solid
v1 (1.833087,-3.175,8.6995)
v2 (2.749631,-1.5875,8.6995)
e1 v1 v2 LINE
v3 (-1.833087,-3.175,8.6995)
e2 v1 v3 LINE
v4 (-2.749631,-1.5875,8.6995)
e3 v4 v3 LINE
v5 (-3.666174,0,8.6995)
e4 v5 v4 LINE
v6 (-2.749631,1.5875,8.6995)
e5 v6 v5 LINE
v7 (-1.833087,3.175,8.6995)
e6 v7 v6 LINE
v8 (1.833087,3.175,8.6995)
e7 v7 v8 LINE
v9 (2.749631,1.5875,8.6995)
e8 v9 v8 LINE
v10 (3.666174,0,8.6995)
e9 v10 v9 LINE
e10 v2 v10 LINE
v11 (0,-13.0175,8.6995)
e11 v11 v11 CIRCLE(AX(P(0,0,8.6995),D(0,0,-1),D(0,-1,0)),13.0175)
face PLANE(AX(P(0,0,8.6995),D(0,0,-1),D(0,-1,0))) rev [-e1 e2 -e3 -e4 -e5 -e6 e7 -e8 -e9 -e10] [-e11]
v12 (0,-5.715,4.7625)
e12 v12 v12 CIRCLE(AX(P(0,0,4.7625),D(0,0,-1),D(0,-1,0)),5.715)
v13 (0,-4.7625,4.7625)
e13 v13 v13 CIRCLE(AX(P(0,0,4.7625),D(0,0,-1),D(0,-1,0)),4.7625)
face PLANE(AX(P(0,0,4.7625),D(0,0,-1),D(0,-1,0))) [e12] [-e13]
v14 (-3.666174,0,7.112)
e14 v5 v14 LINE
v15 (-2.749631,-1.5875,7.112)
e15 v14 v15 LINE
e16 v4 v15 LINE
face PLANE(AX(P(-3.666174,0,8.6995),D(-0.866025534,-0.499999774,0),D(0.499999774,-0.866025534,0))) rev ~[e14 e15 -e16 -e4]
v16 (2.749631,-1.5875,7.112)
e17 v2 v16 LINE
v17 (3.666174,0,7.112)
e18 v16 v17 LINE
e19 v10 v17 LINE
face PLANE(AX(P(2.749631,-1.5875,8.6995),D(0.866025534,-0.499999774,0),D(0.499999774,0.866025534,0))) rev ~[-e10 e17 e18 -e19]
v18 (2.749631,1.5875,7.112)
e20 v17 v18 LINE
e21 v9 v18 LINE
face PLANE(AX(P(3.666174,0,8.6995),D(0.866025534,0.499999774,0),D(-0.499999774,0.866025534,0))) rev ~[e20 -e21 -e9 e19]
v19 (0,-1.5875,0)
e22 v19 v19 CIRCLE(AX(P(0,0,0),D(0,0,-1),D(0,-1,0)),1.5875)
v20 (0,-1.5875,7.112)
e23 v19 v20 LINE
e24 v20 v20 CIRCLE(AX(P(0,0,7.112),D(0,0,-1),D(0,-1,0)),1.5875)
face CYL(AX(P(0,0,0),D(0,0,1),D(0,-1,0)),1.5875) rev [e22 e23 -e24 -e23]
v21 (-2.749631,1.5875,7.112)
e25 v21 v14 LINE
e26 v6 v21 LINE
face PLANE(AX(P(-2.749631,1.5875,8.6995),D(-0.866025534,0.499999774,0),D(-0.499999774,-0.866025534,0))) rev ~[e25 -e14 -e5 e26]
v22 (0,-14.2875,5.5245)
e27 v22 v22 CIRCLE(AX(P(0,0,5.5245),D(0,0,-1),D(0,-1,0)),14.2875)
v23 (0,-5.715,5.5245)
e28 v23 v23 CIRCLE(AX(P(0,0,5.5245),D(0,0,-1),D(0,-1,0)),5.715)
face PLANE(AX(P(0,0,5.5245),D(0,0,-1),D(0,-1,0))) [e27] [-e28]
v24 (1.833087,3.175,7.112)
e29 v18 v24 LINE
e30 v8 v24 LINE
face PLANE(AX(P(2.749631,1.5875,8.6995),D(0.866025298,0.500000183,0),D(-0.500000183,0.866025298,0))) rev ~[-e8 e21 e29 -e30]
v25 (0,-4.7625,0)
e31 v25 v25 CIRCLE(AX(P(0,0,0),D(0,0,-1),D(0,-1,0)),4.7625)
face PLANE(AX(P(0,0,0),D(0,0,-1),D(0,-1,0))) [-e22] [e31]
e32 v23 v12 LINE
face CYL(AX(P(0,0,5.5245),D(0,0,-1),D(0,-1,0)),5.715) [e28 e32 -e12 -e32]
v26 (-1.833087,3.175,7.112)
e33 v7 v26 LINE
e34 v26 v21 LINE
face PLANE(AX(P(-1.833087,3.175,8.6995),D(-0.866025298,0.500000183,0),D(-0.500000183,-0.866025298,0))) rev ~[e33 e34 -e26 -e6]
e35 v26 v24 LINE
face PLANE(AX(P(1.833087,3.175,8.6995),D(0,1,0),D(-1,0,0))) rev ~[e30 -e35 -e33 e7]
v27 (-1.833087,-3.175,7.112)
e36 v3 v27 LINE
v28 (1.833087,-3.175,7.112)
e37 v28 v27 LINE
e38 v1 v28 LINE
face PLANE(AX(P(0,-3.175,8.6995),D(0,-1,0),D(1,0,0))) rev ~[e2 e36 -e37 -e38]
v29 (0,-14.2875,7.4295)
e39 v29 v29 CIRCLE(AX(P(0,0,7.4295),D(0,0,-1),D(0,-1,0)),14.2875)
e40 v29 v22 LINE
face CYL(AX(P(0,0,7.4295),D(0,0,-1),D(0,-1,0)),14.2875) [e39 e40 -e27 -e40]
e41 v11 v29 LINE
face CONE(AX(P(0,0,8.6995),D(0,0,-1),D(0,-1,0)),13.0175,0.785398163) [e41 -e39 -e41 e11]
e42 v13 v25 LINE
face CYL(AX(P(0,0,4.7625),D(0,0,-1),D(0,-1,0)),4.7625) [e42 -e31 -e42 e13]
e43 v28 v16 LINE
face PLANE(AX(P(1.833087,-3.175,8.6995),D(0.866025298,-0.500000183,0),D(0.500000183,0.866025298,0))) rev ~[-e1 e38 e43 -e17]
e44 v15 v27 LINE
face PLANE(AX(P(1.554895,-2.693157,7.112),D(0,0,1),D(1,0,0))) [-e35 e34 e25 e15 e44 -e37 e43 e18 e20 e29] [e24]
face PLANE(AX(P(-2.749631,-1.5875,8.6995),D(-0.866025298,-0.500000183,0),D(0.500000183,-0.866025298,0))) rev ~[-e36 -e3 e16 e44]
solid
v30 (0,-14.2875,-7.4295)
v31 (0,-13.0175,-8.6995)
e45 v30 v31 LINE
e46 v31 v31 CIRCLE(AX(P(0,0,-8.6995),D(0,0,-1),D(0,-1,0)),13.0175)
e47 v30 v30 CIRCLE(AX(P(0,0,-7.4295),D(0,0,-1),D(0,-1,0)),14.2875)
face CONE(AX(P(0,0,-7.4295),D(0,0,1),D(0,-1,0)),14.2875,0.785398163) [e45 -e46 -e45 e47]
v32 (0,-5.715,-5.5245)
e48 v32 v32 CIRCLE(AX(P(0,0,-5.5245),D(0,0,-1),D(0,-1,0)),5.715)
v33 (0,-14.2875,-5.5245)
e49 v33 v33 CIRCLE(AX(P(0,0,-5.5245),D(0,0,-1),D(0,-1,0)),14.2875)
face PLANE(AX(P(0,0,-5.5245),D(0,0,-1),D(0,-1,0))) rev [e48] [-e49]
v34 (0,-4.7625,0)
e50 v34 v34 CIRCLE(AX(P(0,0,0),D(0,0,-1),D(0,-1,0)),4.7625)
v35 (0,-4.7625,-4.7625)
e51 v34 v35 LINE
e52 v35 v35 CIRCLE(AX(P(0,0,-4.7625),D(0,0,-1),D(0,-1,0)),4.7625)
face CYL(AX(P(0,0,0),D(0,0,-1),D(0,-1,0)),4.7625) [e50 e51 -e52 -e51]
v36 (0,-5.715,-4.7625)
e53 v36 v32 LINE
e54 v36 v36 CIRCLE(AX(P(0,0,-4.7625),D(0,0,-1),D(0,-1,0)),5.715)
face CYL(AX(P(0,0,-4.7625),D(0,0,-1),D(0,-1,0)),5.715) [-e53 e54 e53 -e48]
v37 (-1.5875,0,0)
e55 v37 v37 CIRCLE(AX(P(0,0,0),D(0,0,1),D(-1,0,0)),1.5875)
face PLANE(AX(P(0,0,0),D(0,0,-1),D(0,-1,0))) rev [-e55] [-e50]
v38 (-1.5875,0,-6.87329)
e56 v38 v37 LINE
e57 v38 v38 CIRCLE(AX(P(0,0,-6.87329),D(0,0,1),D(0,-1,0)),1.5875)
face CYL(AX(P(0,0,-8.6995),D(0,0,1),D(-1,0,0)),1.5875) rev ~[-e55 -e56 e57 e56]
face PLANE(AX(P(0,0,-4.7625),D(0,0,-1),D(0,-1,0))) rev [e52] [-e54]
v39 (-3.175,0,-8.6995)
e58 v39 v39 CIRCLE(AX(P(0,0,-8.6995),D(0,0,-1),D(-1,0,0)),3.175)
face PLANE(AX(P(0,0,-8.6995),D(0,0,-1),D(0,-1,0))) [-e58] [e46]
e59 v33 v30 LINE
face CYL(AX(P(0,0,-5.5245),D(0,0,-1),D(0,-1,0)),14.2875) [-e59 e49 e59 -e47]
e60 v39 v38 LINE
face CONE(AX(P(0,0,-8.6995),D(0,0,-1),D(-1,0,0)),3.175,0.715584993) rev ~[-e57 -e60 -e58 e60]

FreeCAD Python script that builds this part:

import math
import FreeCAD as App
import Part
import Sketcher

V = App.Vector
Q = App.Units.Quantity


def add_polygon(sketch, points):
    """Adds a closed chain of lines whose ends are joined by coincident constraints."""
    first, n = sketch.GeometryCount, len(points)
    for a, b in zip(points, points[1:] + points[:1]):
        sketch.addGeometry(Part.LineSegment(App.Vector(*a, 0), App.Vector(*b, 0)), False)
    for i in range(n):
        sketch.addConstraint(Sketcher.Constraint("Coincident", first + i, 2, first + (i + 1) % n, 1))

doc = App.newDocument("Part")
params = doc.addObject("Spreadsheet::Sheet", "Params")
for row, (alias, value) in enumerate([
    ("sketch1_height", "0.03 in"),
    ("sketch1_height2", "0.28 in"),
    ("sketch1_width", "0.125 in"),
    ("sketch1_width2", "0.0625 in"),
    ("sketch1_height3", "0.075 in"),
    ("revolution_angle", "360 deg"),
    ("sketch2_radius", "0.125 in"),
    ("pocket1_length", "0.0625 in"),
    ("sketch3_height", "0.03 in"),
    ("sketch3_width", "0.1875 in"),
    ("sketch3_height2", "0.075 in"),
    ("revolution2_angle", "360 deg"),
    ("sketch4_diameter", "0.125 in"),
    ("hole_diameter", "0.125 in"),
    ("hole_depth", "0.625 in"),
    ("hole_csink_diameter", "0.25 in"),
], start=1):
    params.set(f"A{row}", alias)
    params.set(f"B{row}", "=" + value)
    params.setAlias(f"B{row}", alias)

body = doc.addObject("PartDesign::Body", "Body")

# Sketch on YZ plane
sketch1 = body.newObject("Sketcher::SketchObject", "Sketch")
sketch1.AttachmentSupport = (doc.getObject("YZ_Plane"), [""])
sketch1.MapMode = "FlatFace"
add_polygon(sketch1, [(-3.2, 8.7), (-13, 8.7), (-14.3, 7.4), (-14.3, 5.5), (-5.7, 5.5), (-5.7, 4.8), (-4.8, 4.8), (-4.8, 0), (-1.6, 0), (-1.6, 7.1), (-3.2, 7.1)])  # lines 0-10
sketch1.addConstraint([
    Sketcher.Constraint("Horizontal", 0),
    Sketcher.Constraint("Vertical", 2),
    Sketcher.Constraint("Horizontal", 3),
    Sketcher.Constraint("Vertical", 4),
    Sketcher.Constraint("Horizontal", 5),
    Sketcher.Constraint("Vertical", 6),
    Sketcher.Constraint("Horizontal", 7),
    Sketcher.Constraint("Vertical", 8),
    Sketcher.Constraint("Horizontal", 9),
    Sketcher.Constraint("Vertical", 10),
    Sketcher.Constraint("PointOnObject", 6, 2, -1),
    Sketcher.Constraint("Equal", 9, 10),
    Sketcher.Constraint("Angle", 1, Q("-135 deg")),
    Sketcher.Constraint("DistanceY", 4, 2, 4, 1, Q("0.03 in")),
    Sketcher.Constraint("DistanceY", 8, 1, 8, 2, Q("0.28 in")),
    Sketcher.Constraint("DistanceX", 2, 2, 7, 2, Q("0.5 in")),
    Sketcher.Constraint("DistanceX", 3, 2, 9, 2, Q("0.1 in")),
    Sketcher.Constraint("DistanceX", 7, 1, 7, 2, Q("0.125 in")),
    Sketcher.Constraint("DistanceX", 9, 2, 9, 1, Q("0.0625 in")),
    Sketcher.Constraint("DistanceY", 2, 2, 2, 1, Q("0.075 in")),
    Sketcher.Constraint("DistanceY", 6, 2, 6, 1, Q("0.1875 in")),
    Sketcher.Constraint("DistanceX", 1, 2, -1, 1, Q("0.5625 in")),
])
sketch1.setExpression("Constraints[24]", "Params.sketch1_height")
sketch1.setExpression("Constraints[25]", "Params.sketch1_height2")
sketch1.setExpression("Constraints[28]", "Params.sketch1_width")
sketch1.setExpression("Constraints[29]", "Params.sketch1_width2")
sketch1.setExpression("Constraints[30]", "Params.sketch1_height3")
revolution = body.newObject("PartDesign::Revolution", "Revolution")
revolution.Profile = sketch1
revolution.ReferenceAxis = (sketch1, ["V_Axis"])
revolution.setExpression("Angle", "Params.revolution_angle")

# Sketch on XY plane
sketch2 = body.newObject("Sketcher::SketchObject", "Sketch001")
sketch2.AttachmentSupport = (doc.getObject("XY_Plane"), [""])
sketch2.MapMode = "FlatFace"
sketch2.AttachmentOffset = App.Placement(V(0, 0, 0.3425 * 25.4), App.Rotation())
sketch2.addGeometry([
    Part.LineSegment(V(1.833087, 3.175, 0), V(0, 3.175, 0)),  # 0
    Part.ArcOfCircle(Part.Circle(V(0.000001, 0.000001, 0), V(0, 0, 1), 3.174999), math.radians(29.999992), math.radians(90.000015)),  # 1
    Part.LineSegment(V(2.749631, 1.5875, 0), V(1.833087, 3.175, 0)),  # 2
    Part.ArcOfCircle(Part.Circle(V(-0.000021, 0.000005, 0), V(0, 0, 1), 3.175021), math.radians(-29.999884), math.radians(-0.000093)),  # 3
    Part.LineSegment(V(2.749631, -1.5875, 0), V(3.666174, 0, 0)),  # 4
    Part.LineSegment(V(3.666174, 0, 0), V(2.749631, 1.5875, 0)),  # 5
    Part.ArcOfCircle(Part.Circle(V(0.000006, 0.000002, 0), V(0, 0, 1), 3.174994), math.radians(-0.000039), math.radians(30.000016)),  # 6
    Part.ArcOfCircle(Part.Circle(V(0.000001, -0.000001, 0), V(0, 0, 1), 3.174999), math.radians(-90.000015), math.radians(-29.999992)),  # 7
    Part.LineSegment(V(0, -3.175, 0), V(1.833087, -3.175, 0)),  # 8
    Part.LineSegment(V(1.833087, -3.175, 0), V(2.749631, -1.5875, 0)),  # 9
    Part.LineSegment(V(-2.749631, -1.5875, 0), V(-1.833087, -3.175, 0)),  # 10
    Part.LineSegment(V(-1.833087, -3.175, 0), V(0, -3.175, 0)),  # 11
    Part.ArcOfCircle(Part.Circle(V(-0.000001, -0.000001, 0), V(0, 0, 1), 3.174999), math.radians(-150.000008), math.radians(-89.999985)),  # 12
    Part.LineSegment(V(-3.666174, 0, 0), V(-2.749631, -1.5875, 0)),  # 13
    Part.ArcOfCircle(Part.Circle(V(0.000002, 0, 0), V(0, 0, 1), 3.175002), math.radians(150.000023), math.radians(209.999977)),  # 14
    Part.LineSegment(V(-2.749631, 1.5875, 0), V(-3.666174, 0, 0)),  # 15
    Part.LineSegment(V(-1.833087, 3.175, 0), V(-2.749631, 1.5875, 0)),  # 16
    Part.ArcOfCircle(Part.Circle(V(-0.000001, 0.000001, 0), V(0, 0, 1), 3.174999), math.radians(89.999985), math.radians(150.000008)),  # 17
    Part.LineSegment(V(0, 3.175, 0), V(-1.833087, 3.175, 0)),  # 18
], False)
sketch2.addConstraint([
    Sketcher.Constraint("Coincident", 0, 2, 1, 2),
    Sketcher.Constraint("Coincident", 1, 1, 2, 1),
    Sketcher.Constraint("Coincident", 2, 2, 0, 1),
    Sketcher.Constraint("Coincident", 3, 1, 4, 1),
    Sketcher.Constraint("Coincident", 4, 2, 5, 1),
    Sketcher.Constraint("Coincident", 5, 2, 6, 2),
    Sketcher.Constraint("Coincident", 6, 1, 3, 2),
    Sketcher.Constraint("Coincident", 7, 1, 8, 1),
    Sketcher.Constraint("Coincident", 8, 2, 9, 1),
    Sketcher.Constraint("Coincident", 9, 2, 7, 2),
    Sketcher.Constraint("Coincident", 10, 2, 11, 1),
    Sketcher.Constraint("Coincident", 11, 2, 12, 2),
    Sketcher.Constraint("Coincident", 12, 1, 10, 1),
    Sketcher.Constraint("Coincident", 13, 2, 14, 2),
    Sketcher.Constraint("Coincident", 14, 1, 15, 1),
    Sketcher.Constraint("Coincident", 15, 2, 13, 1),
    Sketcher.Constraint("Coincident", 16, 2, 17, 2),
    Sketcher.Constraint("Coincident", 17, 1, 18, 1),
    Sketcher.Constraint("Coincident", 18, 2, 16, 1),
    Sketcher.Constraint("Horizontal", 0),
    Sketcher.Constraint("Horizontal", 8),
    Sketcher.Constraint("Horizontal", 11),
    Sketcher.Constraint("Horizontal", 18),
    Sketcher.Constraint("Coincident", 1, 3, -1, 1),
    Sketcher.Constraint("Coincident", 6, 3, -1, 1),
    Sketcher.Constraint("Coincident", 7, 3, -1, 1),
    Sketcher.Constraint("Coincident", 12, 3, -1, 1),
    Sketcher.Constraint("Coincident", 14, 3, -1, 1),
    Sketcher.Constraint("Coincident", 17, 3, -1, 1),
    Sketcher.Constraint("Coincident", 5, 2, 1, 1),
    Sketcher.Constraint("Coincident", 9, 2, 3, 1),
    Sketcher.Constraint("Coincident", 11, 2, 7, 1),
    Sketcher.Constraint("Coincident", 13, 2, 12, 1),
    Sketcher.Constraint("Coincident", 16, 2, 14, 1),
    Sketcher.Constraint("Coincident", 17, 1, 0, 2),
    Sketcher.Constraint("PointOnObject", 0, 2, -2),
    Sketcher.Constraint("PointOnObject", 4, 2, -1),
    Sketcher.Constraint("PointOnObject", 6, 1, -1),
    Sketcher.Constraint("PointOnObject", 7, 1, -2),
    Sketcher.Constraint("PointOnObject", 15, 2, -1),
    Sketcher.Constraint("Radius", 1, Q("0.125 in")),
    Sketcher.Constraint("DistanceY", -1, 1, 1, 1, Q("0.0625 in")),
    Sketcher.Constraint("DistanceY", 3, 1, -1, 1, Q("0.0625 in")),
    Sketcher.Constraint("DistanceY", 12, 1, -1, 1, Q("0.0625 in")),
    Sketcher.Constraint("DistanceY", -1, 1, 14, 1, Q("0.0625 in")),
    Sketcher.Constraint("Radius", 3, Q("3.175021 mm")),
    Sketcher.Constraint("DistanceX", 0, 2, 0, 1, Q("1.833087 mm")),
    Sketcher.Constraint("DistanceX", 8, 1, 8, 2, Q("1.833087 mm")),
    Sketcher.Constraint("DistanceX", 11, 1, 11, 2, Q("1.833087 mm")),
    Sketcher.Constraint("DistanceX", 18, 2, 18, 1, Q("1.833087 mm")),
    Sketcher.Constraint("DistanceX", 6, 3, 4, 2, Q("3.666168 mm")),
    Sketcher.Constraint("Distance", 13, Q("1.833087 mm")),
])
sketch2.setExpression("Constraints[40]", "Params.sketch2_radius")
pocket1 = body.newObject("PartDesign::Pocket", "Pocket")
pocket1.Profile = sketch2
pocket1.setExpression("Length", "Params.pocket1_length")
body2 = doc.addObject("PartDesign::Body", "Body001")

# Sketch on YZ plane
sketch3 = body2.newObject("Sketcher::SketchObject", "Sketch002")
sketch3.AttachmentSupport = (doc.getObject("YZ_Plane001"), [""])
sketch3.MapMode = "FlatFace"
add_polygon(sketch3, [(0, 0), (-4.8, 0), (-4.8, -4.8), (-5.7, -4.8), (-5.7, -5.5), (-14.3, -5.5), (-14.3, -7.4), (-13, -8.7), (0, -8.7)])  # lines 0-8
sketch3.addConstraint([
    Sketcher.Constraint("Horizontal", 0),
    Sketcher.Constraint("Vertical", 1),
    Sketcher.Constraint("Horizontal", 2),
    Sketcher.Constraint("Vertical", 3),
    Sketcher.Constraint("Horizontal", 4),
    Sketcher.Constraint("Vertical", 5),
    Sketcher.Constraint("Horizontal", 7),
    Sketcher.Constraint("Vertical", 8),
    Sketcher.Constraint("Coincident", 8, 2, -1, 1),
    Sketcher.Constraint("Equal", 0, 1),
    Sketcher.Constraint("Angle", 6, Q("-45 deg")),
    Sketcher.Constraint("DistanceY", 3, 2, 3, 1, Q("0.03 in")),
    Sketcher.Constraint("DistanceX", 0, 2, 0, 1, Q("0.1875 in")),
    Sketcher.Constraint("DistanceY", 5, 2, 5, 1, Q("0.075 in")),
    Sketcher.Constraint("DistanceX", 5, 2, 6, 2, Q("0.05 in")),
    Sketcher.Constraint("DistanceX", 2, 2, 2, 1, Q("0.0375 in")),
    Sketcher.Constraint("DistanceX", 4, 2, 4, 1, Q("0.3375 in")),
])
sketch3.setExpression("Constraints[20]", "Params.sketch3_height")
sketch3.setExpression("Constraints[21]", "Params.sketch3_width")
sketch3.setExpression("Constraints[22]", "Params.sketch3_height2")
revolution2 = body2.newObject("PartDesign::Revolution", "Revolution001")
revolution2.Profile = sketch3
revolution2.ReferenceAxis = (sketch3, ["V_Axis"])
revolution2.setExpression("Angle", "Params.revolution2_angle")

# Sketch on XY plane
sketch4 = body2.newObject("Sketcher::SketchObject", "Sketch003")
sketch4.AttachmentSupport = (doc.getObject("XY_Plane001"), [""])
sketch4.MapMode = "FlatFace"
sketch4.AttachmentOffset = App.Placement(V(0, 0, -0.3425 * 25.4), App.Rotation())
sketch4.addGeometry(Part.Circle(V(0, 0, 0), V(0, 0, 1), 1.6), False)
sketch4.addConstraint([
    Sketcher.Constraint("Coincident", 0, 3, -1, 1),
    Sketcher.Constraint("Diameter", 0, Q("0.125 in")),
])
sketch4.setExpression("Constraints[1]", "Params.sketch4_diameter")
doc.recompute()
hole = body2.newObject("PartDesign::Hole", "Hole")
hole.Profile = sketch4
hole.ThreadType = "None"
hole.setExpression("Diameter", "Params.hole_diameter")
hole.DepthType = "Dimension"
hole.setExpression("Depth", "Params.hole_depth")
hole.DrillPoint = "Flat"
hole.HoleCutType = "Countersink"
hole.setExpression("HoleCutDiameter", "Params.hole_csink_diameter")
hole.HoleCutCountersinkAngle = 82
hole.Reversed = True

doc.recompute()
